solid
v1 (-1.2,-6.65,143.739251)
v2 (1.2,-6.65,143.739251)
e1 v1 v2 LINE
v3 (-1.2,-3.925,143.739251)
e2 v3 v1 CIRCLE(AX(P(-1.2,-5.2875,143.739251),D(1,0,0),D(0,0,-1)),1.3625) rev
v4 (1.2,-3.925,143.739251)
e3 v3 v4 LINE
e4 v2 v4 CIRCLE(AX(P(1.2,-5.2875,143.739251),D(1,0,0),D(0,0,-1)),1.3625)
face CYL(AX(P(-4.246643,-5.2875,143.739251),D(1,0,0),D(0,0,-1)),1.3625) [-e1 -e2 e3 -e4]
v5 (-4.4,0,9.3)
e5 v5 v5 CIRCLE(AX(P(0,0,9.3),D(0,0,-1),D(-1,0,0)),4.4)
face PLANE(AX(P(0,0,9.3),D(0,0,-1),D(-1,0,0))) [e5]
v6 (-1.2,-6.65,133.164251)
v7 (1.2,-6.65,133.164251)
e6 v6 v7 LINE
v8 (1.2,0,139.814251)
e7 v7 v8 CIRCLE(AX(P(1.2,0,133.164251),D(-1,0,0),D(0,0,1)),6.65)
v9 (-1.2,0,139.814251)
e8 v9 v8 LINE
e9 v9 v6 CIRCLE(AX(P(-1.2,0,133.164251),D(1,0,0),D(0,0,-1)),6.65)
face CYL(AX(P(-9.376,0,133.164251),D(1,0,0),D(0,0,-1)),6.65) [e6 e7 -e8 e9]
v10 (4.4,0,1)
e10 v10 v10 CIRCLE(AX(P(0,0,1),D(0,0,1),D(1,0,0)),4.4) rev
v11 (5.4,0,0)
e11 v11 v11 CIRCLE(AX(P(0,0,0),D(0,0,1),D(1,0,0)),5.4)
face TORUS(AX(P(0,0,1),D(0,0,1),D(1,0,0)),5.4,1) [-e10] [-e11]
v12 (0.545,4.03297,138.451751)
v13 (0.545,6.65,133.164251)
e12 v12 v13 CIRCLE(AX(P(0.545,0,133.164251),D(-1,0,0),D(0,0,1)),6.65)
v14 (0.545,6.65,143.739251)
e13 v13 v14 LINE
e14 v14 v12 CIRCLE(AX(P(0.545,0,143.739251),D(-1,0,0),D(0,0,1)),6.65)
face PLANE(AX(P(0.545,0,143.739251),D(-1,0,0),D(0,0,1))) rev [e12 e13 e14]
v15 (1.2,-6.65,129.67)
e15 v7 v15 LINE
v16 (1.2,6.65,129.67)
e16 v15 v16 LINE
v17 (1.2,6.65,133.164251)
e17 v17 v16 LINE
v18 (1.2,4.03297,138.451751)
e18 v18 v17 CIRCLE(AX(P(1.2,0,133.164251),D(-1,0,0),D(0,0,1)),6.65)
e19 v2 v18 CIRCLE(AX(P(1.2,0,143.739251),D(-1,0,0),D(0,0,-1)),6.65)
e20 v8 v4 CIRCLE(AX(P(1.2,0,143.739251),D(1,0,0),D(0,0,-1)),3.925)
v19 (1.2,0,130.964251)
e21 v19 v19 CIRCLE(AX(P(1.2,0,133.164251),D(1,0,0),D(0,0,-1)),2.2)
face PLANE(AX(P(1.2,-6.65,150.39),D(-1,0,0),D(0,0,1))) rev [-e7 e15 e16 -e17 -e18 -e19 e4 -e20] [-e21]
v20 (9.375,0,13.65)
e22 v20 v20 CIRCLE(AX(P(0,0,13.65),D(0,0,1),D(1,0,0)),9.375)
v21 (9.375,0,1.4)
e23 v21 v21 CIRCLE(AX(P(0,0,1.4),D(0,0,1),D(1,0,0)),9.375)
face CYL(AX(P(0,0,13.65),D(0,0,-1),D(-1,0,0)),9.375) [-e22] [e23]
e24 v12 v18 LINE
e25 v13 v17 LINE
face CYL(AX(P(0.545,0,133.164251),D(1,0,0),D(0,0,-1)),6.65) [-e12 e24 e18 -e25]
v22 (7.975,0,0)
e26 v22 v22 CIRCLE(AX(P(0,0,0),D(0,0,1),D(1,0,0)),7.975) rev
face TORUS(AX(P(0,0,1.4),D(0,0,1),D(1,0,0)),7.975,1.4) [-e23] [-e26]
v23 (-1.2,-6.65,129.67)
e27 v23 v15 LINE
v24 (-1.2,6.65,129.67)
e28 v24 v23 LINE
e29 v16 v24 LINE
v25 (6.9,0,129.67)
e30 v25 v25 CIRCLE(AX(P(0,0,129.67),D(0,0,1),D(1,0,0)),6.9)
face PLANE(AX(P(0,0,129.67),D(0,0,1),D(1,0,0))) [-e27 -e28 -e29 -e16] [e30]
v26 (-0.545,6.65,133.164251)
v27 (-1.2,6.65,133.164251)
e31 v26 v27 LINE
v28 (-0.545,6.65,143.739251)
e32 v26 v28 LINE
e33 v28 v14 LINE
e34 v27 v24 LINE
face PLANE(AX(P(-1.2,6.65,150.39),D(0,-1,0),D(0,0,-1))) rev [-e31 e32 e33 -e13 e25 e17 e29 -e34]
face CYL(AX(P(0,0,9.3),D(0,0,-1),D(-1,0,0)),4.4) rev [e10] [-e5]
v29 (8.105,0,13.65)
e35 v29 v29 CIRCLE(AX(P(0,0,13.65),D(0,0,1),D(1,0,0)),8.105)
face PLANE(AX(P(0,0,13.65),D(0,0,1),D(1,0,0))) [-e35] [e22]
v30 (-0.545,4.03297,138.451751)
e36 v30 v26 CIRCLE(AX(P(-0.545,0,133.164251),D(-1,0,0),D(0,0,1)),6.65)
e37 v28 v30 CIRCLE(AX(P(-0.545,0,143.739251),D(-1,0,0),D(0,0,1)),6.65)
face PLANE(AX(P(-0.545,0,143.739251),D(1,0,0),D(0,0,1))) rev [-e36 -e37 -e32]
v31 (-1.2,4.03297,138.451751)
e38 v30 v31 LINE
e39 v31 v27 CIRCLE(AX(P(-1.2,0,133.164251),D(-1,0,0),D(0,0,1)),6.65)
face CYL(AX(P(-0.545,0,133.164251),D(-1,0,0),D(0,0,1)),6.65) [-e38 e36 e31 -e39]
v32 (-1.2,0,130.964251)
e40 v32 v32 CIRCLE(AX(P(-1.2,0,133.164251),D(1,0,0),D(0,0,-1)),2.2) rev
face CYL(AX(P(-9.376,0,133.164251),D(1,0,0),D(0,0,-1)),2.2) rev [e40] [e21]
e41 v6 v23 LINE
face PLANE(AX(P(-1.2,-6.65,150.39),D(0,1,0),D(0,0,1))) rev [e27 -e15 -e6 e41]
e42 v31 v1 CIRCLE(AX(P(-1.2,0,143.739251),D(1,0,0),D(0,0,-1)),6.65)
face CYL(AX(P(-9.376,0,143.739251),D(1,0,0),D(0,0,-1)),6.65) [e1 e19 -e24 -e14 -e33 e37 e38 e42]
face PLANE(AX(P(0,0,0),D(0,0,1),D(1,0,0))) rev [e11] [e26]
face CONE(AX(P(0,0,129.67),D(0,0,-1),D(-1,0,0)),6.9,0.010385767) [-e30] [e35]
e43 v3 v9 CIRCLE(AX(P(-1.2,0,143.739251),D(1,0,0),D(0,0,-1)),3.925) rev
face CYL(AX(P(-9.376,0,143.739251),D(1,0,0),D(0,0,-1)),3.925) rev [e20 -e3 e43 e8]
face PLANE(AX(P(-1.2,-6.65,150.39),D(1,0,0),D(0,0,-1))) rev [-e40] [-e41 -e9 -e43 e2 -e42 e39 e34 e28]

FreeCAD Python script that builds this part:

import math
import FreeCAD as App
import Part
import Sketcher
from FreeCAD import Vector


def edges_at(feature, points):
    """Names of the edges that pass closest to the given points."""
    edges = feature.Shape.Edges
    near = lambda p: min(range(len(edges)), key=lambda i: edges[i].distToShape(Part.Vertex(*p))[0])
    return sorted({f"Edge{near(p) + 1}" for p in points})

doc = App.newDocument("Part")
body = doc.addObject("PartDesign::Body", "Body")

# Sketch on XY plane
sketch1 = doc.addObject("Sketcher::SketchObject", "Sketch")
body.addObject(sketch1)
sketch1.AttachmentSupport = (doc.XY_Plane, [""])
sketch1.MapMode = "FlatFace"
sketch1.addGeometry(Part.Circle(Vector(0, 0, 0), Vector(0, 0, 1), 9), False)
sketch1.addConstraint(Sketcher.Constraint("Coincident", 0, 3, -1, 1))
sketch1.addConstraint(Sketcher.Constraint("Diameter", 0, 18.75))
pad1 = doc.addObject("PartDesign::Pad", "Pad")
body.addObject(pad1)
pad1.Profile = sketch1
pad1.Length = 13.65
doc.recompute()

fillet = doc.addObject("PartDesign::Fillet", "Fillet")
body.addObject(fillet)
fillet.Base = (pad1, edges_at(pad1, [(-9.375, 0, 0)]))
fillet.Radius = 1.4

# Sketch on XY plane
sketch2 = doc.addObject("Sketcher::SketchObject", "Sketch001")
body.addObject(sketch2)
sketch2.AttachmentSupport = (doc.XY_Plane, [""])
sketch2.MapMode = "FlatFace"
sketch2.addGeometry(Part.Circle(Vector(0, 0, 0), Vector(0, 0, 1), 4.4), False)
sketch2.addConstraint(Sketcher.Constraint("Coincident", 0, 3, -1, 1))
sketch2.addConstraint(Sketcher.Constraint("Diameter", 0, 8.8))
pocket1 = doc.addObject("PartDesign::Pocket", "Pocket")
body.addObject(pocket1)
pocket1.Profile = sketch2
pocket1.Length = 9.3
pocket1.Reversed = True
doc.recompute()

fillet2 = doc.addObject("PartDesign::Fillet", "Fillet001")
body.addObject(fillet2)
fillet2.Base = (pocket1, edges_at(pocket1, [(4.4, 0, 0)]))
fillet2.Radius = 1

# Sketch on XY plane
sketch3 = doc.addObject("Sketcher::SketchObject", "Sketch002")
body.addObject(sketch3)
sketch3.AttachmentSupport = (doc.XY_Plane, [""])
sketch3.MapMode = "FlatFace"
sketch3.AttachmentOffset = App.Placement(Vector(0, 0, 13.65), App.Rotation())
sketch3.addGeometry(Part.Circle(Vector(0, 0, 0), Vector(0, 0, 1), 8), False)
sketch3.addConstraint(Sketcher.Constraint("Coincident", 0, 3, -1, 1))
sketch3.addConstraint(Sketcher.Constraint("Diameter", 0, 16.21))
pocket2 = doc.addObject("PartDesign::Pocket", "Pocket001")
body.addObject(pocket2)
pocket2.Profile = sketch3
pocket2.Length = 2.5

# Sketch on XY plane
sketch4 = doc.addObject("Sketcher::SketchObject", "Sketch003")
body.addObject(sketch4)
sketch4.AttachmentSupport = (doc.XY_Plane, [""])
sketch4.MapMode = "FlatFace"
sketch4.AttachmentOffset = App.Placement(Vector(0, 0, 13.65), App.Rotation())
sketch4.addGeometry(Part.Circle(Vector(0, 0, 0), Vector(0, 0, 1), 8), False)
sketch4.addConstraint(Sketcher.Constraint("Coincident", 0, 3, -1, 1))
sketch4.addConstraint(Sketcher.Constraint("Diameter", 0, 16.21))
pad2 = doc.addObject("PartDesign::Pad", "Pad001")
body.addObject(pad2)
pad2.Profile = sketch4
pad2.Length = 2.5
pad2.Reversed = True

# Sketch on XY plane
sketch5 = doc.addObject("Sketcher::SketchObject", "Sketch004")
body.addObject(sketch5)
sketch5.AttachmentSupport = (doc.XY_Plane, [""])
sketch5.MapMode = "FlatFace"
sketch5.AttachmentOffset = App.Placement(Vector(0, 0, 129.67), App.Rotation())
sketch5.addGeometry(Part.Circle(Vector(0, 0, 0), Vector(0, 0, 1), 7), False)
sketch5.addConstraint(Sketcher.Constraint("Coincident", 0, 3, -1, 1))
sketch5.addConstraint(Sketcher.Constraint("Diameter", 0, 13.8))

# Sketch on XY plane
sketch6 = doc.addObject("Sketcher::SketchObject", "Sketch005")
body.addObject(sketch6)
sketch6.AttachmentSupport = (doc.XY_Plane, [""])
sketch6.MapMode = "FlatFace"
sketch6.AttachmentOffset = App.Placement(Vector(0, 0, 13.65), App.Rotation())
sketch6.addGeometry(Part.Circle(Vector(0, 0, 0), Vector(0, 0, 1), 8), False)
sketch6.addConstraint(Sketcher.Constraint("Coincident", 0, 3, -1, 1))
sketch6.addConstraint(Sketcher.Constraint("Diameter", 0, 16.21))

additiveloft = doc.addObject("PartDesign::AdditiveLoft", "AdditiveLoft")
body.addObject(additiveloft)
additiveloft.Profile = sketch5
additiveloft.Sections = [sketch6]

# Sketch on XY plane
sketch7 = doc.addObject("Sketcher::SketchObject", "Sketch006")
body.addObject(sketch7)
sketch7.AttachmentSupport = (doc.XY_Plane, [""])
sketch7.MapMode = "FlatFace"
sketch7.AttachmentOffset = App.Placement(Vector(0, 0, 129.67), App.Rotation())
sketch7.addGeometry(Part.LineSegment(Vector(-1.2, 6.7, 0), Vector(-1.2, -6.7, 0)), False)
sketch7.addGeometry(Part.LineSegment(Vector(-1.2, -6.7, 0), Vector(1.2, -6.7, 0)), False)
sketch7.addGeometry(Part.LineSegment(Vector(1.2, -6.7, 0), Vector(1.2, 6.7, 0)), False)
sketch7.addGeometry(Part.LineSegment(Vector(1.2, 6.7, 0), Vector(-1.2, 6.7, 0)), False)
sketch7.addConstraint(Sketcher.Constraint("Coincident", 0, 2, 1, 1))
sketch7.addConstraint(Sketcher.Constraint("Coincident", 1, 2, 2, 1))
sketch7.addConstraint(Sketcher.Constraint("Coincident", 2, 2, 3, 1))
sketch7.addConstraint(Sketcher.Constraint("Coincident", 3, 2, 0, 1))
sketch7.addConstraint(Sketcher.Constraint("Vertical", 0))
sketch7.addConstraint(Sketcher.Constraint("Horizontal", 1))
sketch7.addConstraint(Sketcher.Constraint("Vertical", 2))
sketch7.addConstraint(Sketcher.Constraint("Horizontal", 3))
sketch7.addConstraint(Sketcher.Constraint("Symmetric", 0, 2, 2, 2, -1, 1))
sketch7.addConstraint(Sketcher.Constraint("DistanceX", 1, 1, 1, 2, 2.4))
sketch7.addConstraint(Sketcher.Constraint("DistanceY", 0, 2, 0, 1, 13.3))
pad3 = doc.addObject("PartDesign::Pad", "Pad002")
body.addObject(pad3)
pad3.Profile = sketch7
pad3.Length = 20.72

# Sketch on YZ plane
sketch8 = doc.addObject("Sketcher::SketchObject", "Sketch007")
body.addObject(sketch8)
sketch8.AttachmentSupport = (doc.YZ_Plane, [""])
sketch8.MapMode = "FlatFace"
sketch8.AttachmentOffset = App.Placement(Vector(0, 0, 1.2), App.Rotation())
sketch8.addGeometry(Part.LineSegment(Vector(7, 150, 0), Vector(-7, 150, 0)), False)
sketch8.addGeometry(Part.LineSegment(Vector(-7, 150, 0), Vector(-7, 144, 0)), False)
sketch8.addGeometry(Part.ArcOfCircle(Part.Circle(Vector(0, 144, 0), Vector(0, 0, 1), 7), math.radians(0), math.radians(180)), False)
sketch8.addGeometry(Part.LineSegment(Vector(7, 144, 0), Vector(7, 150, 0)), False)
sketch8.addConstraint(Sketcher.Constraint("Coincident", 0, 2, 1, 1))
sketch8.addConstraint(Sketcher.Constraint("Tangent", 1, 2, 2, 2))
sketch8.addConstraint(Sketcher.Constraint("Tangent", 2, 1, 3, 1))
sketch8.addConstraint(Sketcher.Constraint("Coincident", 3, 2, 0, 1))
sketch8.addConstraint(Sketcher.Constraint("Horizontal", 0))
sketch8.addConstraint(Sketcher.Constraint("Vertical", 1))
sketch8.addConstraint(Sketcher.Constraint("Vertical", 3))
sketch8.addConstraint(Sketcher.Constraint("PointOnObject", 2, 3, -2))
sketch8.addConstraint(Sketcher.Constraint("Radius", 2, 6.65))
sketch8.addConstraint(Sketcher.Constraint("DistanceY", -1, 1, 0, 2, 150.39))
sketch8.addConstraint(Sketcher.Constraint("DistanceY", 1, 2, 1, 1, 6.650749))
pocket3 = doc.addObject("PartDesign::Pocket", "Pocket002")
body.addObject(pocket3)
pocket3.Profile = sketch8
pocket3.Type = "UpToFirst"

# Sketch on YZ plane
sketch9 = doc.addObject("Sketcher::SketchObject", "Sketch008")
body.addObject(sketch9)
sketch9.AttachmentSupport = (doc.YZ_Plane, [""])
sketch9.MapMode = "FlatFace"
sketch9.AttachmentOffset = App.Placement(Vector(0, 0, 1.2), App.Rotation())
sketch9.addGeometry(Part.LineSegment(Vector(7, 133, 0), Vector(7, 144, 0)), False)
sketch9.addGeometry(Part.ArcOfCircle(Part.Circle(Vector(0, 144, 0), Vector(0, 0, 1), 7), math.radians(-53), math.radians(0)), False)
sketch9.addGeometry(Part.ArcOfCircle(Part.Circle(Vector(0, 133, 0), Vector(0, 0, 1), 7), math.radians(0), math.radians(53)), False)
sketch9.addConstraint(Sketcher.Constraint("Tangent", 0, 2, 1, 2))
sketch9.addConstraint(Sketcher.Constraint("Coincident", 1, 1, 2, 2))
sketch9.addConstraint(Sketcher.Constraint("Tangent", 2, 1, 0, 1))
sketch9.addConstraint(Sketcher.Constraint("Vertical", 0))
sketch9.addConstraint(Sketcher.Constraint("Equal", 1, 2))
sketch9.addConstraint(Sketcher.Constraint("PointOnObject", 1, 3, -2))
sketch9.addConstraint(Sketcher.Constraint("Radius", 1, 6.65))
sketch9.addConstraint(Sketcher.Constraint("DistanceY", 0, 1, 0, 2, 10.575))
sketch9.addConstraint(Sketcher.Constraint("DistanceY", -1, 1, 1, 3, 143.739251))
pocket4 = doc.addObject("PartDesign::Pocket", "Pocket003")
body.addObject(pocket4)
pocket4.Profile = sketch9
pocket4.Length = 0.655
doc.recompute()

mirrored = doc.addObject("PartDesign::Mirrored", "Mirrored")
body.addObject(mirrored)
mirrored.Originals = [pocket4]
mirrored.MirrorPlane = (doc.YZ_Plane, [""])
body.Tip = mirrored

# Sketch on YZ plane
sketch10 = doc.addObject("Sketcher::SketchObject", "Sketch009")
body.addObject(sketch10)
sketch10.AttachmentSupport = (doc.YZ_Plane, [""])
sketch10.MapMode = "FlatFace"
sketch10.AttachmentOffset = App.Placement(Vector(0, 0, 1.2), App.Rotation())
sketch10.addGeometry(Part.LineSegment(Vector(-3.9, 143.7, 0), Vector(-6.7, 143.7, 0)), False)
sketch10.addGeometry(Part.LineSegment(Vector(-6.7, 143.7, 0), Vector(-6.7, 139.8, 0)), False)
sketch10.addGeometry(Part.LineSegment(Vector(-6.7, 139.8, 0), Vector(0, 139.8, 0)), False)
sketch10.addGeometry(Part.ArcOfCircle(Part.Circle(Vector(0, 143.7, 0), Vector(0, 0, 1), 3.9), math.radians(-90), math.radians(180)), False)
sketch10.addConstraint(Sketcher.Constraint("Coincident", 0, 2, 1, 1))
sketch10.addConstraint(Sketcher.Constraint("Coincident", 1, 2, 2, 1))
sketch10.addConstraint(Sketcher.Constraint("Tangent", 2, 2, 3, 1))
sketch10.addConstraint(Sketcher.Constraint("Coincident", 3, 2, 0, 1))
sketch10.addConstraint(Sketcher.Constraint("Horizontal", 0))
sketch10.addConstraint(Sketcher.Constraint("Vertical", 1))
sketch10.addConstraint(Sketcher.Constraint("Horizontal", 2))
sketch10.addConstraint(Sketcher.Constraint("PointOnObject", 3, 3, -2))
sketch10.addConstraint(Sketcher.Constraint("Horizontal", 3, 3, 0, 2))
sketch10.addConstraint(Sketcher.Constraint("Radius", 3, 3.925))
sketch10.addConstraint(Sketcher.Constraint("DistanceX", 2, 1, 2, 2, 6.65))
sketch10.addConstraint(Sketcher.Constraint("DistanceY", -1, 1, 3, 3, 143.739251))
pocket5 = doc.addObject("PartDesign::Pocket", "Pocket004")
body.addObject(pocket5)
pocket5.Profile = sketch10
pocket5.Type = "UpToFirst"

# Sketch on YZ plane
sketch11 = doc.addObject("Sketcher::SketchObject", "Sketch010")
body.addObject(sketch11)
sketch11.AttachmentSupport = (doc.YZ_Plane, [""])
sketch11.MapMode = "FlatFace"
sketch11.AttachmentOffset = App.Placement(Vector(0, 0, 1.2), App.Rotation())
sketch11.addGeometry(Part.LineSegment(Vector(0, 140, 0), Vector(-7, 140, 0)), False)
sketch11.addGeometry(Part.LineSegment(Vector(-7, 140, 0), Vector(-7, 133, 0)), False)
sketch11.addGeometry(Part.ArcOfCircle(Part.Circle(Vector(0, 133, 0), Vector(0, 0, 1), 7), math.radians(90), math.radians(180)), False)
sketch11.addConstraint(Sketcher.Constraint("Coincident", 0, 2, 1, 1))
sketch11.addConstraint(Sketcher.Constraint("Tangent", 1, 2, 2, 2))
sketch11.addConstraint(Sketcher.Constraint("Tangent", 2, 1, 0, 1))
sketch11.addConstraint(Sketcher.Constraint("Horizontal", 0))
sketch11.addConstraint(Sketcher.Constraint("Vertical", 1))
sketch11.addConstraint(Sketcher.Constraint("PointOnObject", 2, 3, -2))
sketch11.addConstraint(Sketcher.Constraint("Radius", 2, 6.65))
sketch11.addConstraint(Sketcher.Constraint("DistanceY", -1, 1, 2, 3, 133.164251))
pocket6 = doc.addObject("PartDesign::Pocket", "Pocket005")
body.addObject(pocket6)
pocket6.Profile = sketch11
pocket6.Type = "UpToFirst"

# Sketch on YZ plane
sketch12 = doc.addObject("Sketcher::SketchObject", "Sketch011")
body.addObject(sketch12)
sketch12.AttachmentSupport = (doc.YZ_Plane, [""])
sketch12.MapMode = "FlatFace"
sketch12.AttachmentOffset = App.Placement(Vector(0, 0, 1.2), App.Rotation())
sketch12.addGeometry(Part.LineSegment(Vector(-3.9, 143.7, 0), Vector(-6.7, 143.7, 0)), False)
sketch12.addGeometry(Part.ArcOfCircle(Part.Circle(Vector(-5.3, 143.7, 0), Vector(0, 0, 1), 1.4), math.radians(180), math.radians(360)), False)
sketch12.addConstraint(Sketcher.Constraint("Coincident", 0, 1, 1, 2))
sketch12.addConstraint(Sketcher.Constraint("Coincident", 1, 1, 0, 2))
sketch12.addConstraint(Sketcher.Constraint("Horizontal", 0))
sketch12.addConstraint(Sketcher.Constraint("Horizontal", 1, 3, 0, 1))
sketch12.addConstraint(Sketcher.Constraint("Radius", 1, 1.3625))
sketch12.addConstraint(Sketcher.Constraint("DistanceX", 1, 1, -1, 1, 6.65))
sketch12.addConstraint(Sketcher.Constraint("DistanceY", -1, 1, 1, 3, 143.739251))
pad4 = doc.addObject("PartDesign::Pad", "Pad003")
body.addObject(pad4)
pad4.Profile = sketch12
pad4.Length = 2.4
pad4.Reversed = True

# Sketch on YZ plane
sketch13 = doc.addObject("Sketcher::SketchObject", "Sketch012")
body.addObject(sketch13)
sketch13.AttachmentSupport = (doc.YZ_Plane, [""])
sketch13.MapMode = "FlatFace"
sketch13.AttachmentOffset = App.Placement(Vector(0, 0, 1.2), App.Rotation())
sketch13.addGeometry(Part.Circle(Vector(0, 133.2, 0), Vector(0, 0, 1), 2.2), False)
sketch13.addConstraint(Sketcher.Constraint("PointOnObject", 0, 3, -2))
sketch13.addConstraint(Sketcher.Constraint("Diameter", 0, 4.4))
sketch13.addConstraint(Sketcher.Constraint("DistanceY", -1, 1, 0, 3, 133.164251))
pocket7 = doc.addObject("PartDesign::Pocket", "Pocket006")
body.addObject(pocket7)
pocket7.Profile = sketch13
pocket7.Type = "UpToFirst"

doc.recompute()
